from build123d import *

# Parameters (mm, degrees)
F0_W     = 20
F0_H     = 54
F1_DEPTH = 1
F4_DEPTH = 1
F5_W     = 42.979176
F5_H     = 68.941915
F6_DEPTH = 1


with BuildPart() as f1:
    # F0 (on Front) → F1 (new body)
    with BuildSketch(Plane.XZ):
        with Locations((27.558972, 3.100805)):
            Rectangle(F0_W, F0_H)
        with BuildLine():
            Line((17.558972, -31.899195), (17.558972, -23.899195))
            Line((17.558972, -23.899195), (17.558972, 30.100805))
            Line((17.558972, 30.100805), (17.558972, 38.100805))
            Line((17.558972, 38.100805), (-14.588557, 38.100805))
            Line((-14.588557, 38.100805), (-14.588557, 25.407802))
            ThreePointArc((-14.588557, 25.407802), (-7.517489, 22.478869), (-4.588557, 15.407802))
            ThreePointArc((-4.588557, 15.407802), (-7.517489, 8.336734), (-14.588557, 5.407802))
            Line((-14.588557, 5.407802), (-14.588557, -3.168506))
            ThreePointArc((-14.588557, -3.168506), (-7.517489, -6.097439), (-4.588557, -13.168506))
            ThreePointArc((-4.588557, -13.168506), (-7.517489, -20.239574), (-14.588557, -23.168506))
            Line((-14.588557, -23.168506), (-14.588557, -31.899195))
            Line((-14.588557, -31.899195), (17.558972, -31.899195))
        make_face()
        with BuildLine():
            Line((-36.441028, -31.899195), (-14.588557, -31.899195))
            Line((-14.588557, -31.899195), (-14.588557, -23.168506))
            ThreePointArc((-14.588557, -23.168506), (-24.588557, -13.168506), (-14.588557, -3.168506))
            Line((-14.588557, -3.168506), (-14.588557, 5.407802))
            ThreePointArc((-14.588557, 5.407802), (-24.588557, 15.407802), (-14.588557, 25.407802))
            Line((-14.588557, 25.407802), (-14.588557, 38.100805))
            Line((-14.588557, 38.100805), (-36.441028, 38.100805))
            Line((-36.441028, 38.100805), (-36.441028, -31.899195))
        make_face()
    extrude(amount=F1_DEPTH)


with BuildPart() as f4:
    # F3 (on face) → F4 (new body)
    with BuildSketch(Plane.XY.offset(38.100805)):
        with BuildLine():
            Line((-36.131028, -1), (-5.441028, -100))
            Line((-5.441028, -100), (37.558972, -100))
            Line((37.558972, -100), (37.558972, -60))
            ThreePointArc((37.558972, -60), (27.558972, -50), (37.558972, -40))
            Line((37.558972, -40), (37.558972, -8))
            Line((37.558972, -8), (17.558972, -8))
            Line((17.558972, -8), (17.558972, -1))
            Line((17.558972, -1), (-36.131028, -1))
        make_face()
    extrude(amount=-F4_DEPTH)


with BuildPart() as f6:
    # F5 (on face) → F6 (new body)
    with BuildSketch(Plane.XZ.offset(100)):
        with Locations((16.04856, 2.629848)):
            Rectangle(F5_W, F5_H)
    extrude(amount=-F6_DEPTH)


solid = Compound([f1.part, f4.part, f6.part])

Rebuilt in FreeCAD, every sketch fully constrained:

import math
import FreeCAD as App
import Part
import Sketcher

doc = App.newDocument("Part")
body = doc.addObject("PartDesign::Body", "Body")

# Sketch on XZ plane
sketch1 = doc.addObject("Sketcher::SketchObject", "Sketch")
body.addObject(sketch1)
sketch1.AttachmentSupport = (doc.XZ_Plane, [""])
sketch1.MapMode = "FlatFace"
sketch1.addGeometry([
    Part.LineSegment(App.Vector(18, -24, 0), App.Vector(38, -24, 0)),  # 0
    Part.LineSegment(App.Vector(38, -24, 0), App.Vector(38, 30, 0)),  # 1
    Part.LineSegment(App.Vector(38, 30, 0), App.Vector(18, 30, 0)),  # 2
    Part.LineSegment(App.Vector(18, 30, 0), App.Vector(18, 38, 0)),  # 3
    Part.LineSegment(App.Vector(18, 38, 0), App.Vector(-36, 38, 0)),  # 4
    Part.LineSegment(App.Vector(-36, 38, 0), App.Vector(-36, -32, 0)),  # 5
    Part.LineSegment(App.Vector(-36, -32, 0), App.Vector(18, -32, 0)),  # 6
    Part.LineSegment(App.Vector(18, -32, 0), App.Vector(18, -24, 0)),  # 7
    Part.ArcOfCircle(Part.Circle(App.Vector(-15, 15, 0), App.Vector(0, 0, 1), 10), math.radians(0), math.radians(90)),  # 8
    Part.ArcOfCircle(Part.Circle(App.Vector(-15, 15, 0), App.Vector(0, 0, 1), 10), math.radians(-90), math.radians(0)),  # 9
    Part.ArcOfCircle(Part.Circle(App.Vector(-15, 15, 0), App.Vector(0, 0, 1), 10), math.radians(90), math.radians(270)),  # 10
    Part.ArcOfCircle(Part.Circle(App.Vector(-15, -13, 0), App.Vector(0, 0, 1), 10), math.radians(0), math.radians(90)),  # 11
    Part.ArcOfCircle(Part.Circle(App.Vector(-15, -13, 0), App.Vector(0, 0, 1), 10), math.radians(-90), math.radians(0)),  # 12
    Part.ArcOfCircle(Part.Circle(App.Vector(-15, -13, 0), App.Vector(0, 0, 1), 10), math.radians(90), math.radians(270)),  # 13
], False)
sketch1.addConstraint([
    Sketcher.Constraint("Coincident", 0, 2, 1, 1),
    Sketcher.Constraint("Coincident", 1, 2, 2, 1),
    Sketcher.Constraint("Coincident", 2, 2, 3, 1),
    Sketcher.Constraint("Coincident", 3, 2, 4, 1),
    Sketcher.Constraint("Coincident", 4, 2, 5, 1),
    Sketcher.Constraint("Coincident", 5, 2, 6, 1),
    Sketcher.Constraint("Coincident", 6, 2, 7, 1),
    Sketcher.Constraint("Coincident", 7, 2, 0, 1),
    Sketcher.Constraint("Tangent", 8, 1, 9, 2),
    Sketcher.Constraint("Tangent", 9, 1, 10, 2),
    Sketcher.Constraint("Tangent", 10, 1, 8, 2),
    Sketcher.Constraint("Tangent", 11, 1, 12, 2),
    Sketcher.Constraint("Tangent", 12, 1, 13, 2),
    Sketcher.Constraint("Tangent", 13, 1, 11, 2),
    Sketcher.Constraint("Horizontal", 0),
    Sketcher.Constraint("Vertical", 1),
    Sketcher.Constraint("Horizontal", 2),
    Sketcher.Constraint("Vertical", 3),
    Sketcher.Constraint("Horizontal", 4),
    Sketcher.Constraint("Vertical", 5),
    Sketcher.Constraint("Horizontal", 6),
    Sketcher.Constraint("Vertical", 7),
    Sketcher.Constraint("Equal", 10, 11),
    Sketcher.Constraint("Horizontal", 10, 3, 8, 1),
    Sketcher.Constraint("Horizontal", 13, 3, 11, 1),
    Sketcher.Constraint("Vertical", 10, 3, 11, 3),
    Sketcher.Constraint("Vertical", 3, 2, 6, 2),
    Sketcher.Constraint("Vertical", 13, 3, 9, 1),
    Sketcher.Constraint("Vertical", 9, 1, 10, 1),
    Sketcher.Constraint("Vertical", 10, 1, 12, 1),
    Sketcher.Constraint("Vertical", 12, 1, 13, 1),
    Sketcher.Constraint("Equal", 6, 1),
    Sketcher.Constraint("Equal", 3, 7),
    Sketcher.Constraint("Radius", 8, 10.000001),
    Sketcher.Constraint("DistanceX", 0, 1, 0, 2, 20.0),
    Sketcher.Constraint("DistanceX", 4, 2, 4, 1, 54.0),
    Sketcher.Constraint("DistanceY", 3, 1, 3, 2, 8.0),
    Sketcher.Constraint("DistanceY", -1, 1, 8, 3, 15.407801),
    Sketcher.Constraint("DistanceX", 8, 3, -1, 1, 14.588558),
    Sketcher.Constraint("DistanceX", -1, 1, 0, 2, 37.558972),
    Sketcher.Constraint("DistanceY", 11, 3, 9, 3, 28.576308),
    Sketcher.Constraint("DistanceY", 0, 2, 12, 3, 10.730688),
])
pad1 = doc.addObject("PartDesign::Pad", "Pad")
body.addObject(pad1)
pad1.Profile = sketch1
pad1.Length = 1
body2 = doc.addObject("PartDesign::Body", "Body001")

# Sketch on XY plane
sketch2 = doc.addObject("Sketcher::SketchObject", "Sketch001")
body2.addObject(sketch2)
sketch2.AttachmentSupport = (doc.getObject("XY_Plane001"), [""])
sketch2.MapMode = "FlatFace"
sketch2.AttachmentOffset = App.Placement(App.Vector(0, 0, 38.100805), App.Rotation())
sketch2.addGeometry([
    Part.LineSegment(App.Vector(-36, -1, 0), App.Vector(-5, -100, 0)),  # 0
    Part.LineSegment(App.Vector(-5, -100, 0), App.Vector(38, -100, 0)),  # 1
    Part.LineSegment(App.Vector(38, -100, 0), App.Vector(38, -60, 0)),  # 2
    Part.ArcOfCircle(Part.Circle(App.Vector(38, -50, 0), App.Vector(0, 0, 1), 10), math.radians(90), math.radians(270)),  # 3
    Part.LineSegment(App.Vector(38, -40, 0), App.Vector(38, -8, 0)),  # 4
    Part.LineSegment(App.Vector(38, -8, 0), App.Vector(18, -8, 0)),  # 5
    Part.LineSegment(App.Vector(18, -8, 0), App.Vector(18, -1, 0)),  # 6
    Part.LineSegment(App.Vector(18, -1, 0), App.Vector(-36, -1, 0)),  # 7
], False)
sketch2.addConstraint([
    Sketcher.Constraint("Coincident", 0, 2, 1, 1),
    Sketcher.Constraint("Coincident", 1, 2, 2, 1),
    Sketcher.Constraint("Coincident", 2, 2, 3, 2),
    Sketcher.Constraint("Coincident", 3, 1, 4, 1),
    Sketcher.Constraint("Coincident", 4, 2, 5, 1),
    Sketcher.Constraint("Coincident", 5, 2, 6, 1),
    Sketcher.Constraint("Coincident", 6, 2, 7, 1),
    Sketcher.Constraint("Coincident", 7, 2, 0, 1),
    Sketcher.Constraint("Horizontal", 1),
    Sketcher.Constraint("Vertical", 2),
    Sketcher.Constraint("Vertical", 4),
    Sketcher.Constraint("Horizontal", 5),
    Sketcher.Constraint("Vertical", 6),
    Sketcher.Constraint("Horizontal", 7),
    Sketcher.Constraint("Vertical", 3, 3, 1, 2),
    Sketcher.Constraint("Vertical", 2, 2, 3, 1),
    Sketcher.Constraint("Radius", 3, 10.0),
    Sketcher.Constraint("DistanceX", 1, 1, 1, 2, 43.0),
    Sketcher.Constraint("DistanceX", 5, 2, 5, 1, 20.0),
    Sketcher.Constraint("DistanceY", 2, 1, 2, 2, 40.0),
    Sketcher.Constraint("DistanceY", 4, 1, 4, 2, 32.0),
    Sketcher.Constraint("DistanceY", 6, 1, 6, 2, 7.0),
    Sketcher.Constraint("DistanceY", 3, 3, -1, 1, 50.0),
    Sketcher.Constraint("DistanceX", 7, 2, 7, 1, 53.69),
    Sketcher.Constraint("DistanceX", -1, 1, 3, 3, 37.558972),
])
pad2 = doc.addObject("PartDesign::Pad", "Pad001")
body2.addObject(pad2)
pad2.Profile = sketch2
pad2.Length = 1
pad2.Reversed = True
body3 = doc.addObject("PartDesign::Body", "Body002")

# Sketch on XZ plane
sketch3 = doc.addObject("Sketcher::SketchObject", "Sketch002")
body3.addObject(sketch3)
sketch3.AttachmentSupport = (doc.getObject("XZ_Plane002"), [""])
sketch3.MapMode = "FlatFace"
sketch3.AttachmentOffset = App.Placement(App.Vector(0, 0, 100), App.Rotation())
sketch3.addGeometry([
    Part.LineSegment(App.Vector(-5, 37, 0), App.Vector(-5, -32, 0)),
    Part.LineSegment(App.Vector(-5, -32, 0), App.Vector(38, -32, 0)),
    Part.LineSegment(App.Vector(38, -32, 0), App.Vector(38, 37, 0)),
    Part.LineSegment(App.Vector(38, 37, 0), App.Vector(-5, 37, 0)),
], False)
sketch3.addConstraint([
    Sketcher.Constraint("Coincident", 0, 2, 1, 1),
    Sketcher.Constraint("Coincident", 1, 2, 2, 1),
    Sketcher.Constraint("Coincident", 2, 2, 3, 1),
    Sketcher.Constraint("Coincident", 3, 2, 0, 1),
    Sketcher.Constraint("Vertical", 0),
    Sketcher.Constraint("Horizontal", 1),
    Sketcher.Constraint("Vertical", 2),
    Sketcher.Constraint("Horizontal", 3),
    Sketcher.Constraint("DistanceX", 1, 1, 1, 2, 42.979176),
    Sketcher.Constraint("DistanceY", 0, 2, 0, 1, 68.941915),
    Sketcher.Constraint("DistanceX", 0, 2, -1, 1, 5.441028),
    Sketcher.Constraint("DistanceY", 0, 2, -1, 1, 31.84111),
])
pad3 = doc.addObject("PartDesign::Pad", "Pad002")
body3.addObject(pad3)
pad3.Profile = sketch3
pad3.Length = 1
pad3.Reversed = True

doc.recompute()
